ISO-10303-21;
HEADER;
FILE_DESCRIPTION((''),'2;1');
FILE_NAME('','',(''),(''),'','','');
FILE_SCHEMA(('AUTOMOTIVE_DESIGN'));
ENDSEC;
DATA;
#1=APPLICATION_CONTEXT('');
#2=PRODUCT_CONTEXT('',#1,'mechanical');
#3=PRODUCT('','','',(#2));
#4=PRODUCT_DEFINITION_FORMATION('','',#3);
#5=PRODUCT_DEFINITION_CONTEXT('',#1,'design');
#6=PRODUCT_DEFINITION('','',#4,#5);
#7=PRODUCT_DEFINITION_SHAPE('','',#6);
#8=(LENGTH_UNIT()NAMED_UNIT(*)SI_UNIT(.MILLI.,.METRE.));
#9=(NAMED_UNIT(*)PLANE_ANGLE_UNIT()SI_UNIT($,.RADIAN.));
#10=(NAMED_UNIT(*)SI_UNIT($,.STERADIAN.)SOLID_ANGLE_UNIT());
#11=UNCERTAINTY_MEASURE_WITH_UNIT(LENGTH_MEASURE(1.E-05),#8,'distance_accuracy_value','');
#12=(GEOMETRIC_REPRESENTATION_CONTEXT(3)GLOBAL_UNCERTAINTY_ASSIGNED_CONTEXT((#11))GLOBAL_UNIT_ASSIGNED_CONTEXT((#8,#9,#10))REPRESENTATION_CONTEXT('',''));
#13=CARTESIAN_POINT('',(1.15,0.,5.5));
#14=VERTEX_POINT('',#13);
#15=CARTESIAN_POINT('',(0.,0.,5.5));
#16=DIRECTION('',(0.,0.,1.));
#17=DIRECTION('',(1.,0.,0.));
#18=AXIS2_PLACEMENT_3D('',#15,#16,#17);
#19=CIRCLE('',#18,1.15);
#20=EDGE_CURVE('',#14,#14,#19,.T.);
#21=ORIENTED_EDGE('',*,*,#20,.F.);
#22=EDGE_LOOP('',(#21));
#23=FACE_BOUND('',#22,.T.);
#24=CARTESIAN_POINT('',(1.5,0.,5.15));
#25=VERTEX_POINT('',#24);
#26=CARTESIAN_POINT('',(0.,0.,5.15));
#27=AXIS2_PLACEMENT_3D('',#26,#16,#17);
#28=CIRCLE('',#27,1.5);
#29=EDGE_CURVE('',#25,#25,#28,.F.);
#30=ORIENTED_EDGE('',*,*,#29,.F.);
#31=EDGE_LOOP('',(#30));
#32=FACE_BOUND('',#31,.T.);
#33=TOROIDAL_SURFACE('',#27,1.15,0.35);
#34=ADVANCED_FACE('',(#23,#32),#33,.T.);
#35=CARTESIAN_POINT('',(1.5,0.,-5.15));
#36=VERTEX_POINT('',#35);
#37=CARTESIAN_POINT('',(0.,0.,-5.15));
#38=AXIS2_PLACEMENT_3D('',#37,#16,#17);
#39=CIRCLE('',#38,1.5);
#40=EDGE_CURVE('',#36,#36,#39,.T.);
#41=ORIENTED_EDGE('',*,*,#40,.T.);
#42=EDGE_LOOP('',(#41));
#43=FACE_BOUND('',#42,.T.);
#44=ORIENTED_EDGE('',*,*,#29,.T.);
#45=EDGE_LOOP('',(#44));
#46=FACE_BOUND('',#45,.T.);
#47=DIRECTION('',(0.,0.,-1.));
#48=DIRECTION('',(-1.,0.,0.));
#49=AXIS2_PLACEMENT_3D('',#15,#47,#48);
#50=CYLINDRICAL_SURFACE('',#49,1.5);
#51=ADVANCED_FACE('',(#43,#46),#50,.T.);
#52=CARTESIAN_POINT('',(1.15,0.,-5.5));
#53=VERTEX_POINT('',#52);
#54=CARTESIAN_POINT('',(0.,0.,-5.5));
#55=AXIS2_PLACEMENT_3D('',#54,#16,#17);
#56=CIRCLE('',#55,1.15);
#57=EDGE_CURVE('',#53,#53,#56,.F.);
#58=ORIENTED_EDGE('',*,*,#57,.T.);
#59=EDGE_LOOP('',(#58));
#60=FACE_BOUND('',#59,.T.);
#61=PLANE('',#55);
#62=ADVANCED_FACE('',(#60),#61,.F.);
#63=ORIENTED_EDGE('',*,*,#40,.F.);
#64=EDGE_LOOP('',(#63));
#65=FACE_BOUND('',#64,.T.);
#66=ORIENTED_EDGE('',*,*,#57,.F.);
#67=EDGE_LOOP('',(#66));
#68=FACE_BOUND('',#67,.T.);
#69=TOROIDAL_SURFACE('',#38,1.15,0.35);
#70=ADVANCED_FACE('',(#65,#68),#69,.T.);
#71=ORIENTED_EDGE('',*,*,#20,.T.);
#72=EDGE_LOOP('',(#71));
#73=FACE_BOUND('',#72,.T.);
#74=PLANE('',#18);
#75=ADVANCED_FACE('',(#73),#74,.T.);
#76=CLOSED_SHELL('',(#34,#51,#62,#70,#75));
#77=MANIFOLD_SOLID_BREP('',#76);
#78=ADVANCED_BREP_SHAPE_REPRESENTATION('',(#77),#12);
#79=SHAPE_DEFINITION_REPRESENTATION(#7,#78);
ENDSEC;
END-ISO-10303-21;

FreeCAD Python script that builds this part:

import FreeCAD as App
import Part
import Sketcher
from FreeCAD import Vector
Q = App.Units.Quantity


def edges_at(feature, points):
    """Names of the edges that pass closest to the given points."""
    edges = feature.Shape.Edges
    near = lambda p: min(range(len(edges)), key=lambda i: edges[i].distToShape(Part.Vertex(*p))[0])
    return sorted({f"Edge{near(p) + 1}" for p in points})

doc = App.newDocument("Part")
body = doc.addObject("PartDesign::Body", "Body")

# Sketch on XY plane
sketch1 = doc.addObject("Sketcher::SketchObject", "Sketch")
body.addObject(sketch1)
sketch1.AttachmentSupport = (doc.XY_Plane, [""])
sketch1.MapMode = "FlatFace"
sketch1.addGeometry(Part.Circle(Vector(0, 0, 0), Vector(0, 0, 1), 1.5), False)
sketch1.addConstraint([
    Sketcher.Constraint("Coincident", 0, 3, -1, 1),
    Sketcher.Constraint("Diameter", 0, Q("3 mm")),
])
pad1 = doc.addObject("PartDesign::Pad", "Pad")
body.addObject(pad1)
pad1.Profile = sketch1
pad1.Length = 11
pad1.Midplane = True
doc.recompute()

fillet = doc.addObject("PartDesign::Fillet", "Fillet")
body.addObject(fillet)
fillet.Base = (pad1, edges_at(pad1, [(-1.5, 0, -5.5), (-1.5, 0, 5.5)]))
fillet.Radius = 0.35

doc.recompute()
